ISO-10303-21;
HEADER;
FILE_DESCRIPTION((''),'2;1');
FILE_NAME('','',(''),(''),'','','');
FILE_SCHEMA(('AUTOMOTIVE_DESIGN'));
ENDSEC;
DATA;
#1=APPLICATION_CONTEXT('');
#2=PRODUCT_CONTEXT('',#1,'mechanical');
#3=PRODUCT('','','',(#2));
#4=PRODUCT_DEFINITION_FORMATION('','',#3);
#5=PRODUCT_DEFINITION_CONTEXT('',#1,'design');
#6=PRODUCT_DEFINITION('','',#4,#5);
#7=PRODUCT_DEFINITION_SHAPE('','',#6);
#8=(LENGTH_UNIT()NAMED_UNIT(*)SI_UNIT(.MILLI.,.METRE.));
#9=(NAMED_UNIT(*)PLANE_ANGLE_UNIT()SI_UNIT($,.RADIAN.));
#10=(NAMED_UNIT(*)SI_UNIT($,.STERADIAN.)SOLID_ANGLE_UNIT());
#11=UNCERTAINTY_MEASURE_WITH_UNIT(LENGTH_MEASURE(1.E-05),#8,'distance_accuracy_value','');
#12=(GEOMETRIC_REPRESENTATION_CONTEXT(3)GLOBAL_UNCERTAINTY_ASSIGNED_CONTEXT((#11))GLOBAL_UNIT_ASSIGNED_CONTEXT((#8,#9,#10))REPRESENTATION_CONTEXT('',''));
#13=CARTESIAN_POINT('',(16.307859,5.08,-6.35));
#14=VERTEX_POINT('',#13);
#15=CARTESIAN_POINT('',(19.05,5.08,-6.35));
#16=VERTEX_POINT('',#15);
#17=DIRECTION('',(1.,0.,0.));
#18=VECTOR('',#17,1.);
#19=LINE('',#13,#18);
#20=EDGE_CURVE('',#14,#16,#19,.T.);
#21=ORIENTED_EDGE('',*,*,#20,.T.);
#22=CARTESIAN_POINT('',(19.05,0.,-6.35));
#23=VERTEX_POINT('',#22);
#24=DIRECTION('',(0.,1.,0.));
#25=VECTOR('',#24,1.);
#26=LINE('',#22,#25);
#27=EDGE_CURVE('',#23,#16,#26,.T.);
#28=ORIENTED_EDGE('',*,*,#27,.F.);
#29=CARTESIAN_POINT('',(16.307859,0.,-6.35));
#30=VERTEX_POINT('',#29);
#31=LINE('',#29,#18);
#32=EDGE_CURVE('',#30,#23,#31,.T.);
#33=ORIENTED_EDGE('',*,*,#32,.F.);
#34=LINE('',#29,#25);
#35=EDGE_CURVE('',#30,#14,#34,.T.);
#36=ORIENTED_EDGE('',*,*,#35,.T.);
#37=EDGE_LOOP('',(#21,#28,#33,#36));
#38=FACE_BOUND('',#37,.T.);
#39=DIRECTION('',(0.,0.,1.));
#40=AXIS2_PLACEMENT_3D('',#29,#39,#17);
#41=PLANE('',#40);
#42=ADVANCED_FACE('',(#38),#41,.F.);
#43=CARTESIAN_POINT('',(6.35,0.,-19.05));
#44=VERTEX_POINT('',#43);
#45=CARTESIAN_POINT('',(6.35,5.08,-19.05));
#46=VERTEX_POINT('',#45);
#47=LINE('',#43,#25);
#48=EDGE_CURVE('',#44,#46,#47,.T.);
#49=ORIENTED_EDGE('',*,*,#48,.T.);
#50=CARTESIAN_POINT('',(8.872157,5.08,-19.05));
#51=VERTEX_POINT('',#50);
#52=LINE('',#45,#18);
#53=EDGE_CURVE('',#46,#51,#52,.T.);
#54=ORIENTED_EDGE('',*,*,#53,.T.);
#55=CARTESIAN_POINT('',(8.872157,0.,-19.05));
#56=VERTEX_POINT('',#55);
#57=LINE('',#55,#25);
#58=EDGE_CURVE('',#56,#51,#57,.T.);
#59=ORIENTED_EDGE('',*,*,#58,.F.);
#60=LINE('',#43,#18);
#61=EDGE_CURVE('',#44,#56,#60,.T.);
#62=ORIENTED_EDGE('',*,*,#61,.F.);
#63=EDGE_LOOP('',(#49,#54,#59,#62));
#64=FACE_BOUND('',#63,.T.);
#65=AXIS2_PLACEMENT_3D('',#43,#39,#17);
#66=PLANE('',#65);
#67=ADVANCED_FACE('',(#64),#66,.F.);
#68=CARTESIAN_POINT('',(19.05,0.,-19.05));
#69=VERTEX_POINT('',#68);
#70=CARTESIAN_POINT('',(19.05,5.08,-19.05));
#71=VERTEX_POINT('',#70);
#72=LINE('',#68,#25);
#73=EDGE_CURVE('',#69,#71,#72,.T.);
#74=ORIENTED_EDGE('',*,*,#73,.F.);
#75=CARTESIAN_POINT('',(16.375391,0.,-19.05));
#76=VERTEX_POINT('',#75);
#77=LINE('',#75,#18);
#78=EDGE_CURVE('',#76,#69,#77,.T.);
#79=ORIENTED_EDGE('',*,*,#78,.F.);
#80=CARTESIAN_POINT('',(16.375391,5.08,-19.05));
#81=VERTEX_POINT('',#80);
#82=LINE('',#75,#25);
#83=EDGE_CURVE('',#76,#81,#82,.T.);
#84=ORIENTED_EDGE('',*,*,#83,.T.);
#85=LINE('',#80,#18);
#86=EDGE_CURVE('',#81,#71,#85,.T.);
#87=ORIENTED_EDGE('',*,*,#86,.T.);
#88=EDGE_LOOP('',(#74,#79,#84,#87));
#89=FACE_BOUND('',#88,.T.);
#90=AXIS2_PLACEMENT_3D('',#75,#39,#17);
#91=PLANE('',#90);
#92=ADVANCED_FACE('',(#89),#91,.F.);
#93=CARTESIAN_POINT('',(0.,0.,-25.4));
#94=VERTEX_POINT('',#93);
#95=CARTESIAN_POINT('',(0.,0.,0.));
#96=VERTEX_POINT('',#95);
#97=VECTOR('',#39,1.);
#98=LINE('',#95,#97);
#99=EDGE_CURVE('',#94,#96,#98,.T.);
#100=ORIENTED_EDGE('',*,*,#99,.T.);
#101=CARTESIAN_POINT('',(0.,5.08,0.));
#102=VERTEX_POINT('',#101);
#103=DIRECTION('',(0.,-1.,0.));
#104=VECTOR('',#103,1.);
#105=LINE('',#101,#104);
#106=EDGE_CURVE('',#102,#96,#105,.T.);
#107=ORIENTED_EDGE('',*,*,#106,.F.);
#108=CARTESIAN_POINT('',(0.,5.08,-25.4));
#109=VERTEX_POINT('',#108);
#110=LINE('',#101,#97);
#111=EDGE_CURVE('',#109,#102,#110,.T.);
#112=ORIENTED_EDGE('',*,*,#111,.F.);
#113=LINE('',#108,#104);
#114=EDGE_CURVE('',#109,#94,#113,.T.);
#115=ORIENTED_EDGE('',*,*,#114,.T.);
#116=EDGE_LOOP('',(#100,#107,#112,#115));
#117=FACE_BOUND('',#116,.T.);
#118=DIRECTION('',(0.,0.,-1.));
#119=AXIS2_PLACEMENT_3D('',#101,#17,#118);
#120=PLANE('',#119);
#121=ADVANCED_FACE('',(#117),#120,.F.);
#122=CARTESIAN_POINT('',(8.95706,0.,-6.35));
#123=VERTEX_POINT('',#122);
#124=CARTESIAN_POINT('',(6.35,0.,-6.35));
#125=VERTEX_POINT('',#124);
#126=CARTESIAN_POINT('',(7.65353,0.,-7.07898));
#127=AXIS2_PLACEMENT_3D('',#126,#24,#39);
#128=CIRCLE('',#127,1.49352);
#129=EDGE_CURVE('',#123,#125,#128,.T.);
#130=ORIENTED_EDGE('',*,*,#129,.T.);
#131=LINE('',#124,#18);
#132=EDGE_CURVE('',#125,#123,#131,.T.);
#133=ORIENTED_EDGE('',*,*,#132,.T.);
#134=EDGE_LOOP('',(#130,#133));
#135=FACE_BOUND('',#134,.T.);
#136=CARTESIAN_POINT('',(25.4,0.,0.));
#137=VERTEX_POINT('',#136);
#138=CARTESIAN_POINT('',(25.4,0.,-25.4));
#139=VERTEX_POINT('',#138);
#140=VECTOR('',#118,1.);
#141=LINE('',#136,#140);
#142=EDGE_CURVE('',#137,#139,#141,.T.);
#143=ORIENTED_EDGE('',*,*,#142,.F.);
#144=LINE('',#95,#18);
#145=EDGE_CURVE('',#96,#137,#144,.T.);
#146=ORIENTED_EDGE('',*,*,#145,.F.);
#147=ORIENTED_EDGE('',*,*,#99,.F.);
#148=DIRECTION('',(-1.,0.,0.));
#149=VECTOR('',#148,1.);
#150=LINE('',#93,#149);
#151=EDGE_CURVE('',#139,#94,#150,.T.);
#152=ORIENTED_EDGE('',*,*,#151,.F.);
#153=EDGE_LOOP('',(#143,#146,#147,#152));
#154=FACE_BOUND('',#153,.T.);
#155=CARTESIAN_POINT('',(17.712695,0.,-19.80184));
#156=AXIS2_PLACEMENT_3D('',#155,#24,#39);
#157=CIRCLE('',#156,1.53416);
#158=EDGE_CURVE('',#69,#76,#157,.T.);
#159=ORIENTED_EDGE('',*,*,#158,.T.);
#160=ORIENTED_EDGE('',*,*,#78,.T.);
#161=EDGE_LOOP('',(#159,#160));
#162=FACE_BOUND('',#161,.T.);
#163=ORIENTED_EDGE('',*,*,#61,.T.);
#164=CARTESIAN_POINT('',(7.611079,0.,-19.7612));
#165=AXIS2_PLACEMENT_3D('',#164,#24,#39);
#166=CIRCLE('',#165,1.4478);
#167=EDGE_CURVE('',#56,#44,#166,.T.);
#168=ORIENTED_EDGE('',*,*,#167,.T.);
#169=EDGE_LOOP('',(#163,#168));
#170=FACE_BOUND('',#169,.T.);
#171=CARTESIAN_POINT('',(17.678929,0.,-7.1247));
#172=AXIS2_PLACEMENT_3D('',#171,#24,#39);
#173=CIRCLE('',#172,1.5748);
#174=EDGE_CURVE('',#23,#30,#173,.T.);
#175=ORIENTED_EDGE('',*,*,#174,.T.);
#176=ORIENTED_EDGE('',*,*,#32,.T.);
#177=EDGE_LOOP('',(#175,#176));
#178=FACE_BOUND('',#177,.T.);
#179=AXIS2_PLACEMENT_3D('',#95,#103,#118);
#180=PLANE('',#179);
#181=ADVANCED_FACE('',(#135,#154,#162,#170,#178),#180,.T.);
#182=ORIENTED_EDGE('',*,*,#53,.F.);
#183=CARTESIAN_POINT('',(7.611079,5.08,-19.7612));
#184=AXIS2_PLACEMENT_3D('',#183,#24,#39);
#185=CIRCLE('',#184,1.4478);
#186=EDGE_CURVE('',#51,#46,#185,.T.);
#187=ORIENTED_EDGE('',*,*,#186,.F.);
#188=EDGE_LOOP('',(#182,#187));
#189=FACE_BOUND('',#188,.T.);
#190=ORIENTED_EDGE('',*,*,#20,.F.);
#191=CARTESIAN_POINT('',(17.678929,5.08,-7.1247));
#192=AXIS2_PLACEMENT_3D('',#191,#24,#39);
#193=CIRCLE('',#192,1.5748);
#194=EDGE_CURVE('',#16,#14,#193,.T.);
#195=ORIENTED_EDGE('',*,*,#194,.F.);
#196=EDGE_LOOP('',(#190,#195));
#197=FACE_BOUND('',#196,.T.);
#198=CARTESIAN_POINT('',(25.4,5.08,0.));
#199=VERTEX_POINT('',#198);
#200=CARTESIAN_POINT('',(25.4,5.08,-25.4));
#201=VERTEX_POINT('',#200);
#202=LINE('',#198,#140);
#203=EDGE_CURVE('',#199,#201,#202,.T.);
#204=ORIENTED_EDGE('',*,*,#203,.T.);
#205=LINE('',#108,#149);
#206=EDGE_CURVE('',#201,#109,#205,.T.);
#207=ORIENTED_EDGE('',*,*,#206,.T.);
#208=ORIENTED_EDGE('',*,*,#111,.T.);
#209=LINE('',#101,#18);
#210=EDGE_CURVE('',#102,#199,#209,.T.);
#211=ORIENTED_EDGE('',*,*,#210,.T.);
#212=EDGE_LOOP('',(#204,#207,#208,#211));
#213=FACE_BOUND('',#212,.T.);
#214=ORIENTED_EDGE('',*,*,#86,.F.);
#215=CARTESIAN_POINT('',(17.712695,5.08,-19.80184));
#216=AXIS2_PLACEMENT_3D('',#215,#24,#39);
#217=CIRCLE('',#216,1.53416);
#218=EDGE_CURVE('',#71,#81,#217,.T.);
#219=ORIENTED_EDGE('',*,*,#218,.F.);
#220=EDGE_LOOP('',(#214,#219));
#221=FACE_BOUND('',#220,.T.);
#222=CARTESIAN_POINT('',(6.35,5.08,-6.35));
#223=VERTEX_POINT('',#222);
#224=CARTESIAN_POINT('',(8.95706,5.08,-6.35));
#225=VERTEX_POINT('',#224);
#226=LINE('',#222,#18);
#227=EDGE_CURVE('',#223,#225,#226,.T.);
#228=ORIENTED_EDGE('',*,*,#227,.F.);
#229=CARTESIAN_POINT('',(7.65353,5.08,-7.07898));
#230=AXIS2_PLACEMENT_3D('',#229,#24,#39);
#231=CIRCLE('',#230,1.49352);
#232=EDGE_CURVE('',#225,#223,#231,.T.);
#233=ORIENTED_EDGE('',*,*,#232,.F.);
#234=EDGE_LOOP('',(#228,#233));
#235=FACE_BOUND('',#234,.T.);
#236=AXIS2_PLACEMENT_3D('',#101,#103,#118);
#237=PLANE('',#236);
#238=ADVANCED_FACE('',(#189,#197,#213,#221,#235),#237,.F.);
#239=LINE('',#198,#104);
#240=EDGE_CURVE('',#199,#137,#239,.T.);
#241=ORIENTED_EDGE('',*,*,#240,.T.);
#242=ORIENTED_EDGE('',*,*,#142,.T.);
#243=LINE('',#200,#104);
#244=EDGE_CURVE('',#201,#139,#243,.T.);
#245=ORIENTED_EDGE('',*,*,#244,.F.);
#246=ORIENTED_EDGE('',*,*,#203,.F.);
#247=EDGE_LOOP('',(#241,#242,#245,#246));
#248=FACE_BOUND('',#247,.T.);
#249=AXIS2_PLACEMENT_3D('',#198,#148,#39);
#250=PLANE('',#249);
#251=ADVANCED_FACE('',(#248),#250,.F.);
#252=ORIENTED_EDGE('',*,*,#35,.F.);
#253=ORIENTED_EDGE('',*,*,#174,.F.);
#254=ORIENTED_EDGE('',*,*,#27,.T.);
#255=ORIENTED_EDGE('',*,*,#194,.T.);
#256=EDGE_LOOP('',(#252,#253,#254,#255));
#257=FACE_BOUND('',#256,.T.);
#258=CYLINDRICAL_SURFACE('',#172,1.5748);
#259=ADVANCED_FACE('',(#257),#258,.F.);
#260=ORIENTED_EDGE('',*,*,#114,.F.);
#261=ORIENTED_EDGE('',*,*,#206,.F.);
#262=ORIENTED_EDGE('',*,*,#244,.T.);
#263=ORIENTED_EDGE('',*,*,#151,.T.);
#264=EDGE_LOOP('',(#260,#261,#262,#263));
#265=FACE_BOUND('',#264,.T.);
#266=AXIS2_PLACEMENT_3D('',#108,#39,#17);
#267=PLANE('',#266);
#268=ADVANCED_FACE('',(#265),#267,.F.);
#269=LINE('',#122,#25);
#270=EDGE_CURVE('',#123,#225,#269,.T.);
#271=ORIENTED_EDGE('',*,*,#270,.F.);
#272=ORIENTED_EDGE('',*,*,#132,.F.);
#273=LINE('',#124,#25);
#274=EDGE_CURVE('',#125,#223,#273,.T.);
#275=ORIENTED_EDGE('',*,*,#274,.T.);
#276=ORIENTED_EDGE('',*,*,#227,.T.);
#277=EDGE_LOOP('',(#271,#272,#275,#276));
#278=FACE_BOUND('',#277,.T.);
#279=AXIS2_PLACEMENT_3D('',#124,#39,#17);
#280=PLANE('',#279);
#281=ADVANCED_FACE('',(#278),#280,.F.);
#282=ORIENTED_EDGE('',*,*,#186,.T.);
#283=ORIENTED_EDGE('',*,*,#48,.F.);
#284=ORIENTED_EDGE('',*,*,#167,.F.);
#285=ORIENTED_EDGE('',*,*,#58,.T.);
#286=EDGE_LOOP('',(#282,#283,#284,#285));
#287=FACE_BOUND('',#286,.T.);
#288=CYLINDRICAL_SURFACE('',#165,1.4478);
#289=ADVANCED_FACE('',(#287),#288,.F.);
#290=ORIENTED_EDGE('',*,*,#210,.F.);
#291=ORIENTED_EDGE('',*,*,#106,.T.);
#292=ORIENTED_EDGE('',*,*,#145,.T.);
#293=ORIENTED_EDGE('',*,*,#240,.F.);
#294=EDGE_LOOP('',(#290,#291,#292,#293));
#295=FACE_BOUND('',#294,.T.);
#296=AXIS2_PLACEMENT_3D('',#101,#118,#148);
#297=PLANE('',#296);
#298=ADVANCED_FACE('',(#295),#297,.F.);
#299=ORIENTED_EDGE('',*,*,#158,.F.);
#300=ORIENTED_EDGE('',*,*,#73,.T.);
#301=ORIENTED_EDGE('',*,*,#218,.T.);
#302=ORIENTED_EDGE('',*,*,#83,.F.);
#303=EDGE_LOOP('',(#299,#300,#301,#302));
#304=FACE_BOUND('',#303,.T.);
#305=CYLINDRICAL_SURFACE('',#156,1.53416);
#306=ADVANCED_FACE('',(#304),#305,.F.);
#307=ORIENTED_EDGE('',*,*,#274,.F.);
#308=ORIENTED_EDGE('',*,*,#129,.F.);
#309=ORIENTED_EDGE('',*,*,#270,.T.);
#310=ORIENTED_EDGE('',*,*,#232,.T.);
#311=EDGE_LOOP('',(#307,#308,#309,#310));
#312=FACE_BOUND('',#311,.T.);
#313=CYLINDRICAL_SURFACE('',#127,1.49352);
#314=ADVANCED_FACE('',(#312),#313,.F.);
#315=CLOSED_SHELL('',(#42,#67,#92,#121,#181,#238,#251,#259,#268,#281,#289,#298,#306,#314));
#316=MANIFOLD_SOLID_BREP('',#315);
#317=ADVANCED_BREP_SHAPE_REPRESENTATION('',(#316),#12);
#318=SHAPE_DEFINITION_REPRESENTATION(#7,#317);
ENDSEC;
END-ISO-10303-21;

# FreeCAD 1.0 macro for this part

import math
import FreeCAD as App
import Part
import Sketcher
from FreeCAD import Vector
Q = App.Units.Quantity

doc = App.newDocument("Part")
body = doc.addObject("PartDesign::Body", "Body")

# Sketch on XZ plane
sketch1 = doc.addObject("Sketcher::SketchObject", "Sketch")
body.addObject(sketch1)
sketch1.AttachmentSupport = (doc.XZ_Plane, [""])
sketch1.MapMode = "FlatFace"
sketch1.addGeometry(Part.LineSegment(Vector(0, -25, 0), Vector(0, 0, 0)), False)
sketch1.addGeometry(Part.LineSegment(Vector(0, 0, 0), Vector(25, 0, 0)), False)
sketch1.addGeometry(Part.LineSegment(Vector(25, 0, 0), Vector(25, -25, 0)), False)
sketch1.addGeometry(Part.LineSegment(Vector(25, -25, 0), Vector(0, -25, 0)), False)
sketch1.addConstraint(Sketcher.Constraint("Coincident", 0, 2, 1, 1))
sketch1.addConstraint(Sketcher.Constraint("Coincident", 1, 2, 2, 1))
sketch1.addConstraint(Sketcher.Constraint("Coincident", 2, 2, 3, 1))
sketch1.addConstraint(Sketcher.Constraint("Coincident", 3, 2, 0, 1))
sketch1.addConstraint(Sketcher.Constraint("Vertical", 0))
sketch1.addConstraint(Sketcher.Constraint("Horizontal", 1))
sketch1.addConstraint(Sketcher.Constraint("Vertical", 2))
sketch1.addConstraint(Sketcher.Constraint("Horizontal", 3))
sketch1.addConstraint(Sketcher.Constraint("Coincident", 0, 2, -1, 1))
sketch1.addConstraint(Sketcher.Constraint("Equal", 3, 0))
sketch1.addConstraint(Sketcher.Constraint("DistanceX", 1, 1, 1, 2, Q("1 in")))
pad1 = doc.addObject("PartDesign::Pad", "Pad")
body.addObject(pad1)
pad1.Profile = sketch1
pad1.Length = Q("0.2 in")
pad1.Reversed = True

# Sketch on XZ plane
sketch2 = doc.addObject("Sketcher::SketchObject", "Sketch001")
body.addObject(sketch2)
sketch2.AttachmentSupport = (doc.XZ_Plane, [""])
sketch2.MapMode = "FlatFace"
sketch2.AttachmentOffset = App.Placement(Vector(0, 0, -0.2 * 25.4), App.Rotation())
sketch2.addGeometry(Part.LineSegment(Vector(6.3, -6.3, 0), Vector(9, -6.3, 0)), False)
sketch2.addGeometry(Part.ArcOfCircle(Part.Circle(Vector(7.7, -7.1, 0), Vector(0, 0, 1), 1.5), math.radians(151), math.radians(389)), False)
sketch2.addGeometry(Part.LineSegment(Vector(16.3, -6.3, 0), Vector(19.1, -6.3, 0)), False)
sketch2.addGeometry(Part.ArcOfCircle(Part.Circle(Vector(17.7, -7.1, 0), Vector(0, 0, 1), 1.6), math.radians(151), math.radians(389)), False)
sketch2.addGeometry(Part.LineSegment(Vector(6.3, -19.1, 0), Vector(8.9, -19.1, 0)), False)
sketch2.addGeometry(Part.ArcOfCircle(Part.Circle(Vector(7.6, -19.8, 0), Vector(0, 0, 1), 1.4), math.radians(151), math.radians(389)), False)
sketch2.addGeometry(Part.LineSegment(Vector(16.4, -19.1, 0), Vector(19.1, -19.1, 0)), False)
sketch2.addGeometry(Part.ArcOfCircle(Part.Circle(Vector(17.7, -19.8, 0), Vector(0, 0, 1), 1.5), math.radians(151), math.radians(389)), False)
sketch2.addConstraint(Sketcher.Constraint("Coincident", 0, 1, 1, 1))
sketch2.addConstraint(Sketcher.Constraint("Coincident", 1, 2, 0, 2))
sketch2.addConstraint(Sketcher.Constraint("Coincident", 2, 1, 3, 1))
sketch2.addConstraint(Sketcher.Constraint("Coincident", 3, 2, 2, 2))
sketch2.addConstraint(Sketcher.Constraint("Coincident", 4, 1, 5, 1))
sketch2.addConstraint(Sketcher.Constraint("Coincident", 5, 2, 4, 2))
sketch2.addConstraint(Sketcher.Constraint("Coincident", 6, 1, 7, 1))
sketch2.addConstraint(Sketcher.Constraint("Coincident", 7, 2, 6, 2))
sketch2.addConstraint(Sketcher.Constraint("Horizontal", 0))
sketch2.addConstraint(Sketcher.Constraint("Horizontal", 2))
sketch2.addConstraint(Sketcher.Constraint("Horizontal", 4))
sketch2.addConstraint(Sketcher.Constraint("Horizontal", 6))
sketch2.addConstraint(Sketcher.Constraint("Horizontal", 1, 2, 2, 1))
sketch2.addConstraint(Sketcher.Constraint("Horizontal", 5, 2, 6, 1))
sketch2.addConstraint(Sketcher.Constraint("Vertical", 0, 1, 4, 1))
sketch2.addConstraint(Sketcher.Constraint("Vertical", 3, 2, 7, 2))
sketch2.addConstraint(Sketcher.Constraint("Radius", 3, Q("0.062 in")))
sketch2.addConstraint(Sketcher.Constraint("Radius", 5, Q("0.057 in")))
sketch2.addConstraint(Sketcher.Constraint("Radius", 1, Q("0.0588 in")))
sketch2.addConstraint(Sketcher.Constraint("Radius", 7, Q("0.0604 in")))
sketch2.addConstraint(Sketcher.Constraint("DistanceX", 0, 1, 3, 2, Q("0.5 in")))
sketch2.addConstraint(Sketcher.Constraint("DistanceY", 4, 1, 0, 1, Q("0.5 in")))
sketch2.addConstraint(Sketcher.Constraint("DistanceX", -1, 1, 0, 1, Q("0.25 in")))
sketch2.addConstraint(Sketcher.Constraint("DistanceY", 0, 1, -1, 1, Q("0.25 in")))
sketch2.addConstraint(Sketcher.Constraint("DistanceY", 5, 3, -1, 1, Q("0.778 in")))
sketch2.addConstraint(Sketcher.Constraint("DistanceY", 1, 3, -1, 1, Q("0.2787 in")))
sketch2.addConstraint(Sketcher.Constraint("DistanceY", 3, 3, -1, 1, Q("0.2805 in")))
sketch2.addConstraint(Sketcher.Constraint("DistanceY", 7, 3, -1, 1, Q("0.7796 in")))
pocket1 = doc.addObject("PartDesign::Pocket", "Pocket")
body.addObject(pocket1)
pocket1.Profile = sketch2
pocket1.Length = Q("0.2 in")
pocket1.Reversed = True

doc.recompute()
